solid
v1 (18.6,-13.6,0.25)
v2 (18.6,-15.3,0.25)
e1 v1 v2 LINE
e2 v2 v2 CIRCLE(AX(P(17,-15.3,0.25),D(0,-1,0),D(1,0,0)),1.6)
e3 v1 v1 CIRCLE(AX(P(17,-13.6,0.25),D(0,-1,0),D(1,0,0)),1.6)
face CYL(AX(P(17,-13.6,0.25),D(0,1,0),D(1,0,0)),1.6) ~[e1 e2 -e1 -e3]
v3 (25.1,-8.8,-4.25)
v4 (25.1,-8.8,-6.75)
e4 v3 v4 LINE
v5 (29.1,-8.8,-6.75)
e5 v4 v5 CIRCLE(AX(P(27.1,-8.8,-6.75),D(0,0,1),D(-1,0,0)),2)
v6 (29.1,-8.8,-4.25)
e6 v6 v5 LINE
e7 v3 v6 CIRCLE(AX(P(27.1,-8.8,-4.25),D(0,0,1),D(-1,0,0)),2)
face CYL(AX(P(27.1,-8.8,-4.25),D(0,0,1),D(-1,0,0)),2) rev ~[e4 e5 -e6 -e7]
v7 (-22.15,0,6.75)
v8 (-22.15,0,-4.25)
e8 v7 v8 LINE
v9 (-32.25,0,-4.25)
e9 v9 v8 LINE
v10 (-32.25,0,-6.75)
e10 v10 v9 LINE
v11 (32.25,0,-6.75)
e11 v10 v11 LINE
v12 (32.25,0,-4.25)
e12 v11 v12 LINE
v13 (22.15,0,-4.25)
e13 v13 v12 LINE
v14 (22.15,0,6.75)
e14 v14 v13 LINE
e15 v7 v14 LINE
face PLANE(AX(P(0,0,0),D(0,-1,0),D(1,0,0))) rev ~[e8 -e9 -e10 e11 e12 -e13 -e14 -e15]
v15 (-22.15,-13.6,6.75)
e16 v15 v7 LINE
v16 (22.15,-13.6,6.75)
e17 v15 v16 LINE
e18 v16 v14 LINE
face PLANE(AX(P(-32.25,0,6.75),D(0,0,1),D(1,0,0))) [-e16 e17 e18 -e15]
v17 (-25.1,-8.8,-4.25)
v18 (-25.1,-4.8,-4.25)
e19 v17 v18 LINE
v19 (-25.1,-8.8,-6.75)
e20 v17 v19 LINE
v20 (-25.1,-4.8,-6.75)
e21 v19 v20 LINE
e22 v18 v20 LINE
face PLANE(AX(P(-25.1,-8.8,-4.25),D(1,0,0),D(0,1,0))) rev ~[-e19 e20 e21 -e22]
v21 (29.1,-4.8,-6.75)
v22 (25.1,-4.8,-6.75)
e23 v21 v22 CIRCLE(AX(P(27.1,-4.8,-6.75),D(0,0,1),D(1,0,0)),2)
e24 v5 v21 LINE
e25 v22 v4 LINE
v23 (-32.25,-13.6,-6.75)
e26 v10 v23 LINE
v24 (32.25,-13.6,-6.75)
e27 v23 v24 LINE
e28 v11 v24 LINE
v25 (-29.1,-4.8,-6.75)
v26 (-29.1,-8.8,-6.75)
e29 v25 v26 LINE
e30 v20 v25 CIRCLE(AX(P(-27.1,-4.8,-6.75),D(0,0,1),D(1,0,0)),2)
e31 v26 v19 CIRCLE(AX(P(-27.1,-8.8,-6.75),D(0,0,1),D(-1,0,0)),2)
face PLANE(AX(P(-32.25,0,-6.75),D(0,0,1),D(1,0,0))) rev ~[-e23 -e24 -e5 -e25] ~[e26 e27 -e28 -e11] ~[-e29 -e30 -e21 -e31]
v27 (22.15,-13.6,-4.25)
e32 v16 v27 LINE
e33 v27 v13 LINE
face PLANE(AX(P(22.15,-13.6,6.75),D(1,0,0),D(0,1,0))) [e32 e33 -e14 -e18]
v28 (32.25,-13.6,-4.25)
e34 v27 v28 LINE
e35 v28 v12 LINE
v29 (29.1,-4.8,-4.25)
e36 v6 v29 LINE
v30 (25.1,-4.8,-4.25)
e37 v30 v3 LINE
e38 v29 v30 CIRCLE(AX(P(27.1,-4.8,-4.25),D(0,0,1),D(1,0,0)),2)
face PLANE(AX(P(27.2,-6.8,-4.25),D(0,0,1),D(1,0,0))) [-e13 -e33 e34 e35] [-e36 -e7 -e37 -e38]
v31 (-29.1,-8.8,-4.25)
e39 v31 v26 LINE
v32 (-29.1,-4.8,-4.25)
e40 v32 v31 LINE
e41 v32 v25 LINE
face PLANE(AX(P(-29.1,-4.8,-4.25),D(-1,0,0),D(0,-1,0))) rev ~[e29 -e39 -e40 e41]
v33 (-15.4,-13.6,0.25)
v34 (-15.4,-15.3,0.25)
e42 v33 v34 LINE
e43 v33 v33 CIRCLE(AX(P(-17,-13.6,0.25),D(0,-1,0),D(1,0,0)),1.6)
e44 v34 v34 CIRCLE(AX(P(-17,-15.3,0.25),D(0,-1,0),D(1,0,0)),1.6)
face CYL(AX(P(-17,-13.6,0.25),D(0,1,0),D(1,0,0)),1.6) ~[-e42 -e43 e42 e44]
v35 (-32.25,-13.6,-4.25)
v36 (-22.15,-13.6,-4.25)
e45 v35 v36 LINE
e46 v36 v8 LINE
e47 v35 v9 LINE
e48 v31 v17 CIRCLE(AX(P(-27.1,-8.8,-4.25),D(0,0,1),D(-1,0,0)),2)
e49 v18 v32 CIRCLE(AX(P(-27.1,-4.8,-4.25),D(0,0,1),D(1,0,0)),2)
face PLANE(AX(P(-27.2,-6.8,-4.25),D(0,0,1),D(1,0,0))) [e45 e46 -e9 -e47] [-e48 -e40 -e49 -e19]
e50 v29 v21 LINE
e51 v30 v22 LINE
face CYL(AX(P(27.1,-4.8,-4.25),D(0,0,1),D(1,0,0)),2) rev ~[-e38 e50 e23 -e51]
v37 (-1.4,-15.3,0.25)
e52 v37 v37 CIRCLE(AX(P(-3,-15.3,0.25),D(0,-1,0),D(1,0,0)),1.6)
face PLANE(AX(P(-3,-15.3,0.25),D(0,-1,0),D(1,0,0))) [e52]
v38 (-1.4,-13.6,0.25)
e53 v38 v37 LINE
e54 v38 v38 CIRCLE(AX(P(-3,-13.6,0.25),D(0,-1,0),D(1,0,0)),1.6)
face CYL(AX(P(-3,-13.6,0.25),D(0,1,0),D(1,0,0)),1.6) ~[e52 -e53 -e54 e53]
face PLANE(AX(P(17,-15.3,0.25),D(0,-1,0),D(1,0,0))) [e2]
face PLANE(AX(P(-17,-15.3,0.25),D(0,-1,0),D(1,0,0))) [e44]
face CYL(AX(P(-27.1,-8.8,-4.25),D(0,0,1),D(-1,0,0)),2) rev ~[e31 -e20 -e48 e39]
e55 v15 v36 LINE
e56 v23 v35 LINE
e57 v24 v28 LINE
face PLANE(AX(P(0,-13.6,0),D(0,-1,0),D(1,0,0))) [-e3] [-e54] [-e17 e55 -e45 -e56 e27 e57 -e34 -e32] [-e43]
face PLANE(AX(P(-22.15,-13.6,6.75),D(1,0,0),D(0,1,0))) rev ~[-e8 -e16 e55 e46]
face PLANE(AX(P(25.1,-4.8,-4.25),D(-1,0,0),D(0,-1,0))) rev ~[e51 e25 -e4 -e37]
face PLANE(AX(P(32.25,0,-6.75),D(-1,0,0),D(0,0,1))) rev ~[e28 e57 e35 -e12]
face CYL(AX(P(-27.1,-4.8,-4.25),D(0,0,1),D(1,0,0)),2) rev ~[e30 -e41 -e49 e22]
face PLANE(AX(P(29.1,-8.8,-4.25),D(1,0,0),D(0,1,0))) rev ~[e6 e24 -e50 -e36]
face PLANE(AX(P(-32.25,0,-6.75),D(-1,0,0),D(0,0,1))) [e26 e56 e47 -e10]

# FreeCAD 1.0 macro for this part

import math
import FreeCAD as App
import Part
import Sketcher
Q = App.Units.Quantity

doc = App.newDocument("Part")
params = doc.addObject("Spreadsheet::Sheet", "Params")
for row, (alias, value) in enumerate([
    ("sketch1_width", "64.5 mm"),
    ("sketch1_height", "13.5 mm"),
    ("pad1_length", "13.6 mm"),
    ("sketch2_width", "10.1 mm"),
    ("sketch2_height", "13.6 mm"),
    ("pocket1_length", "11 mm"),
    ("sketch3_diameter", "3.2 mm"),
    ("pad2_length", "1.7 mm"),
    ("sketch4_radius", "2 mm"),
    ("sketch4_height", "4 mm"),
    ("pocket2_length", "25 mm"),
], start=1):
    params.set(f"A{row}", alias)
    params.set(f"B{row}", "=" + value)
    params.setAlias(f"B{row}", alias)

body = doc.addObject("PartDesign::Body", "Body")

# Sketch on XZ plane
sketch1 = body.newObject("Sketcher::SketchObject", "Sketch")
sketch1.AttachmentSupport = (doc.getObject("XZ_Plane"), [""])
sketch1.MapMode = "FlatFace"
sketch1.addGeometry([
    Part.LineSegment(App.Vector(-32.25, 6.75, 0), App.Vector(-32.25, -6.75, 0)),
    Part.LineSegment(App.Vector(-32.25, -6.75, 0), App.Vector(32.25, -6.75, 0)),
    Part.LineSegment(App.Vector(32.25, -6.75, 0), App.Vector(32.25, 6.75, 0)),
    Part.LineSegment(App.Vector(32.25, 6.75, 0), App.Vector(-32.25, 6.75, 0)),
], False)
sketch1.addConstraint([
    Sketcher.Constraint("Coincident", 0, 2, 1, 1),
    Sketcher.Constraint("Coincident", 1, 2, 2, 1),
    Sketcher.Constraint("Coincident", 2, 2, 3, 1),
    Sketcher.Constraint("Coincident", 3, 2, 0, 1),
    Sketcher.Constraint("Vertical", 0),
    Sketcher.Constraint("Horizontal", 1),
    Sketcher.Constraint("Vertical", 2),
    Sketcher.Constraint("Horizontal", 3),
    Sketcher.Constraint("Symmetric", 0, 2, 2, 2, -1, 1),
    Sketcher.Constraint("DistanceX", 1, 1, 1, 2, Q("64.5 mm")),
    Sketcher.Constraint("DistanceY", 0, 2, 0, 1, Q("13.5 mm")),
])
sketch1.setExpression("Constraints[9]", "Params.sketch1_width")
sketch1.setExpression("Constraints[10]", "Params.sketch1_height")
pad1 = body.newObject("PartDesign::Pad", "Pad")
pad1.Profile = sketch1
pad1.setExpression("Length", "Params.pad1_length")

# Sketch on XY plane
sketch2 = body.newObject("Sketcher::SketchObject", "Sketch001")
sketch2.AttachmentSupport = (doc.getObject("XY_Plane"), [""])
sketch2.MapMode = "FlatFace"
sketch2.AttachmentOffset = App.Placement(App.Vector(0, 0, 6.75), App.Rotation())
sketch2.addGeometry([
    Part.LineSegment(App.Vector(-32.25, 0, 0), App.Vector(-32.25, -13.6, 0)),  # 0
    Part.LineSegment(App.Vector(-32.25, -13.6, 0), App.Vector(-22.15, -13.6, 0)),  # 1
    Part.LineSegment(App.Vector(-22.15, -13.6, 0), App.Vector(-22.15, 0, 0)),  # 2
    Part.LineSegment(App.Vector(-22.15, 0, 0), App.Vector(-32.25, 0, 0)),  # 3
    Part.LineSegment(App.Vector(22.15, 0, 0), App.Vector(22.15, -13.6, 0)),  # 4
    Part.LineSegment(App.Vector(22.15, -13.6, 0), App.Vector(32.25, -13.6, 0)),  # 5
    Part.LineSegment(App.Vector(32.25, -13.6, 0), App.Vector(32.25, 0, 0)),  # 6
    Part.LineSegment(App.Vector(32.25, 0, 0), App.Vector(22.15, 0, 0)),  # 7
], False)
sketch2.addConstraint([
    Sketcher.Constraint("Coincident", 0, 2, 1, 1),
    Sketcher.Constraint("Coincident", 1, 2, 2, 1),
    Sketcher.Constraint("Coincident", 2, 2, 3, 1),
    Sketcher.Constraint("Coincident", 3, 2, 0, 1),
    Sketcher.Constraint("Coincident", 4, 2, 5, 1),
    Sketcher.Constraint("Coincident", 5, 2, 6, 1),
    Sketcher.Constraint("Coincident", 6, 2, 7, 1),
    Sketcher.Constraint("Coincident", 7, 2, 4, 1),
    Sketcher.Constraint("Vertical", 0),
    Sketcher.Constraint("Horizontal", 1),
    Sketcher.Constraint("Vertical", 2),
    Sketcher.Constraint("Horizontal", 3),
    Sketcher.Constraint("Vertical", 4),
    Sketcher.Constraint("Horizontal", 5),
    Sketcher.Constraint("Vertical", 6),
    Sketcher.Constraint("Horizontal", 7),
    Sketcher.Constraint("Symmetric", 3, 2, 6, 2, -1, 1),
    Sketcher.Constraint("Symmetric", 1, 2, 4, 2, -2),
    Sketcher.Constraint("PointOnObject", 2, 2, -1),
    Sketcher.Constraint("DistanceX", 1, 1, 1, 2, Q("10.1 mm")),
    Sketcher.Constraint("DistanceY", 0, 2, 0, 1, Q("13.6 mm")),
    Sketcher.Constraint("DistanceX", 1, 2, 4, 2, Q("44.3 mm")),
])
sketch2.setExpression("Constraints[19]", "Params.sketch2_width")
sketch2.setExpression("Constraints[20]", "Params.sketch2_height")
pocket1 = body.newObject("PartDesign::Pocket", "Pocket")
pocket1.Profile = sketch2
pocket1.setExpression("Length", "Params.pocket1_length")

# Sketch on XZ plane
sketch3 = body.newObject("Sketcher::SketchObject", "Sketch002")
sketch3.AttachmentSupport = (doc.getObject("XZ_Plane"), [""])
sketch3.MapMode = "FlatFace"
sketch3.AttachmentOffset = App.Placement(App.Vector(0, 0, 13.6), App.Rotation())
sketch3.addGeometry([
    Part.Circle(App.Vector(17, 0.25, 0), App.Vector(0, 0, 1), 1.6),
    Part.Circle(App.Vector(-3, 0.25, 0), App.Vector(0, 0, 1), 1.6),
    Part.Circle(App.Vector(-17, 0.25, 0), App.Vector(0, 0, 1), 1.6),
], False)
sketch3.addConstraint([
    Sketcher.Constraint("Equal", 0, 1),
    Sketcher.Constraint("Equal", 1, 2),
    Sketcher.Constraint("Symmetric", 0, 3, 2, 3, -2),
    Sketcher.Constraint("Horizontal", 0, 3, 1, 3),
    Sketcher.Constraint("Diameter", 0, Q("3.2 mm")),
    Sketcher.Constraint("DistanceX", -1, 1, 0, 3, Q("17 mm")),
    Sketcher.Constraint("DistanceX", 1, 3, -1, 1, Q("3 mm")),
    Sketcher.Constraint("DistanceY", -1, 1, 0, 3, Q("0.25 mm")),
])
sketch3.setExpression("Constraints[4]", "Params.sketch3_diameter")
pad2 = body.newObject("PartDesign::Pad", "Pad001")
pad2.Profile = sketch3
pad2.setExpression("Length", "Params.pad2_length")

# Sketch on XY plane
sketch4 = body.newObject("Sketcher::SketchObject", "Sketch003")
sketch4.AttachmentSupport = (doc.getObject("XY_Plane"), [""])
sketch4.MapMode = "FlatFace"
sketch4.AttachmentOffset = App.Placement(App.Vector(0, 0, -4.25), App.Rotation())
sketch4.addGeometry([
    Part.ArcOfCircle(Part.Circle(App.Vector(-27.1, -4.8, 0), App.Vector(0, 0, 1), 2), math.radians(0), math.radians(180)),  # 0
    Part.LineSegment(App.Vector(-29.1, -4.8, 0), App.Vector(-29.1, -8.8, 0)),  # 1
    Part.ArcOfCircle(Part.Circle(App.Vector(-27.1, -8.8, 0), App.Vector(0, 0, 1), 2), math.radians(180), math.radians(360)),  # 2
    Part.LineSegment(App.Vector(-25.1, -8.8, 0), App.Vector(-25.1, -4.8, 0)),  # 3
    Part.LineSegment(App.Vector(29.1, -8.8, 0), App.Vector(29.1, -4.8, 0)),  # 4
    Part.ArcOfCircle(Part.Circle(App.Vector(27.1, -4.8, 0), App.Vector(0, 0, 1), 2), math.radians(0), math.radians(180)),  # 5
    Part.LineSegment(App.Vector(25.1, -4.8, 0), App.Vector(25.1, -8.8, 0)),  # 6
    Part.ArcOfCircle(Part.Circle(App.Vector(27.1, -8.8, 0), App.Vector(0, 0, 1), 2), math.radians(180), math.radians(360)),  # 7
], False)
sketch4.addConstraint([
    Sketcher.Constraint("Tangent", 0, 2, 1, 1),
    Sketcher.Constraint("Tangent", 1, 2, 2, 1),
    Sketcher.Constraint("Tangent", 2, 2, 3, 1),
    Sketcher.Constraint("Tangent", 3, 2, 0, 1),
    Sketcher.Constraint("Tangent", 4, 2, 5, 1),
    Sketcher.Constraint("Tangent", 5, 2, 6, 1),
    Sketcher.Constraint("Tangent", 6, 2, 7, 1),
    Sketcher.Constraint("Tangent", 7, 2, 4, 1),
    Sketcher.Constraint("Vertical", 1),
    Sketcher.Constraint("Vertical", 3),
    Sketcher.Constraint("Vertical", 4),
    Sketcher.Constraint("Vertical", 6),
    Sketcher.Constraint("Equal", 2, 5),
    Sketcher.Constraint("Symmetric", 0, 3, 5, 3, -2),
    Sketcher.Constraint("Horizontal", 2, 3, 7, 3),
    Sketcher.Constraint("Radius", 0, Q("2 mm")),
    Sketcher.Constraint("DistanceY", 1, 2, 1, 1, Q("4 mm")),
    Sketcher.Constraint("DistanceX", 0, 3, -1, 1, Q("27.1 mm")),
    Sketcher.Constraint("DistanceY", 0, 3, -1, 1, Q("4.8 mm")),
])
sketch4.setExpression("Constraints[15]", "Params.sketch4_radius")
sketch4.setExpression("Constraints[16]", "Params.sketch4_height")
pocket2 = body.newObject("PartDesign::Pocket", "Pocket001")
pocket2.Profile = sketch4
pocket2.setExpression("Length", "Params.pocket2_length")

doc.recompute()
